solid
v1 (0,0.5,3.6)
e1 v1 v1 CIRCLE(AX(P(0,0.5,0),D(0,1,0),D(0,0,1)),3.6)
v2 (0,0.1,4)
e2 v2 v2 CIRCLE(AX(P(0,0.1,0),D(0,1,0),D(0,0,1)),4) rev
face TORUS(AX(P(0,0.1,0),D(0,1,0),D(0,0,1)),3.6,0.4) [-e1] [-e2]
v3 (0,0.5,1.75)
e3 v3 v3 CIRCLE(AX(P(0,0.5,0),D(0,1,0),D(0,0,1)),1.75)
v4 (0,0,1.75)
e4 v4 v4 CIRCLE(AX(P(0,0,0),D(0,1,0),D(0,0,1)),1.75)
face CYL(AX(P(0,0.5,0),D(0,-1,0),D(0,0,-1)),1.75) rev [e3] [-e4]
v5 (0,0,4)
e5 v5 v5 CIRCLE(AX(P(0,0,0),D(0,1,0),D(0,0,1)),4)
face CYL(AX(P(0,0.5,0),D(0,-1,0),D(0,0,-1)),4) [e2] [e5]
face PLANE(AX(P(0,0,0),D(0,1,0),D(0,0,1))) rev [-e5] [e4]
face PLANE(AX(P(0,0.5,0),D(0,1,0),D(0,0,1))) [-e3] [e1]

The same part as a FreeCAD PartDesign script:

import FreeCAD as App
import Part
import Sketcher
Q = App.Units.Quantity


def edges_at(feature, points):
    """Names of the edges that pass closest to the given points."""
    edges = feature.Shape.Edges
    near = lambda p: min(range(len(edges)), key=lambda i: edges[i].distToShape(Part.Vertex(*p))[0])
    return sorted({f"Edge{near(p) + 1}" for p in points})

doc = App.newDocument("Part")
body = doc.addObject("PartDesign::Body", "Body")

sketch1 = body.newObject("Sketcher::SketchObject", "Sketch")
sketch1.AttachmentSupport = (doc.getObject("XZ_Plane"), [""])
sketch1.MapMode = "FlatFace"
sketch1.addGeometry(Part.Circle(App.Vector(0, 0, 0), App.Vector(0, 0, 1), 4), False)
sketch1.addGeometry(Part.Circle(App.Vector(0, 0, 0), App.Vector(0, 0, 1), 1.75), False)
sketch1.addConstraint(Sketcher.Constraint("Coincident", 0, 3, -1, 1))
sketch1.addConstraint(Sketcher.Constraint("Coincident", 1, 3, -1, 1))
sketch1.addConstraint(Sketcher.Constraint("Diameter", 0, Q("8 mm")))
sketch1.addConstraint(Sketcher.Constraint("Diameter", 1, Q("3.5 mm")))
pad1 = body.newObject("PartDesign::Pad", "Pad")
pad1.Profile = sketch1
pad1.Length = 0.5
pad1.Reversed = True
doc.recompute()

fillet = body.newObject("PartDesign::Fillet", "Fillet")
fillet.Base = (pad1, edges_at(pad1, [(0, 0.5, -4)]))
fillet.Radius = 0.4

doc.recompute()
